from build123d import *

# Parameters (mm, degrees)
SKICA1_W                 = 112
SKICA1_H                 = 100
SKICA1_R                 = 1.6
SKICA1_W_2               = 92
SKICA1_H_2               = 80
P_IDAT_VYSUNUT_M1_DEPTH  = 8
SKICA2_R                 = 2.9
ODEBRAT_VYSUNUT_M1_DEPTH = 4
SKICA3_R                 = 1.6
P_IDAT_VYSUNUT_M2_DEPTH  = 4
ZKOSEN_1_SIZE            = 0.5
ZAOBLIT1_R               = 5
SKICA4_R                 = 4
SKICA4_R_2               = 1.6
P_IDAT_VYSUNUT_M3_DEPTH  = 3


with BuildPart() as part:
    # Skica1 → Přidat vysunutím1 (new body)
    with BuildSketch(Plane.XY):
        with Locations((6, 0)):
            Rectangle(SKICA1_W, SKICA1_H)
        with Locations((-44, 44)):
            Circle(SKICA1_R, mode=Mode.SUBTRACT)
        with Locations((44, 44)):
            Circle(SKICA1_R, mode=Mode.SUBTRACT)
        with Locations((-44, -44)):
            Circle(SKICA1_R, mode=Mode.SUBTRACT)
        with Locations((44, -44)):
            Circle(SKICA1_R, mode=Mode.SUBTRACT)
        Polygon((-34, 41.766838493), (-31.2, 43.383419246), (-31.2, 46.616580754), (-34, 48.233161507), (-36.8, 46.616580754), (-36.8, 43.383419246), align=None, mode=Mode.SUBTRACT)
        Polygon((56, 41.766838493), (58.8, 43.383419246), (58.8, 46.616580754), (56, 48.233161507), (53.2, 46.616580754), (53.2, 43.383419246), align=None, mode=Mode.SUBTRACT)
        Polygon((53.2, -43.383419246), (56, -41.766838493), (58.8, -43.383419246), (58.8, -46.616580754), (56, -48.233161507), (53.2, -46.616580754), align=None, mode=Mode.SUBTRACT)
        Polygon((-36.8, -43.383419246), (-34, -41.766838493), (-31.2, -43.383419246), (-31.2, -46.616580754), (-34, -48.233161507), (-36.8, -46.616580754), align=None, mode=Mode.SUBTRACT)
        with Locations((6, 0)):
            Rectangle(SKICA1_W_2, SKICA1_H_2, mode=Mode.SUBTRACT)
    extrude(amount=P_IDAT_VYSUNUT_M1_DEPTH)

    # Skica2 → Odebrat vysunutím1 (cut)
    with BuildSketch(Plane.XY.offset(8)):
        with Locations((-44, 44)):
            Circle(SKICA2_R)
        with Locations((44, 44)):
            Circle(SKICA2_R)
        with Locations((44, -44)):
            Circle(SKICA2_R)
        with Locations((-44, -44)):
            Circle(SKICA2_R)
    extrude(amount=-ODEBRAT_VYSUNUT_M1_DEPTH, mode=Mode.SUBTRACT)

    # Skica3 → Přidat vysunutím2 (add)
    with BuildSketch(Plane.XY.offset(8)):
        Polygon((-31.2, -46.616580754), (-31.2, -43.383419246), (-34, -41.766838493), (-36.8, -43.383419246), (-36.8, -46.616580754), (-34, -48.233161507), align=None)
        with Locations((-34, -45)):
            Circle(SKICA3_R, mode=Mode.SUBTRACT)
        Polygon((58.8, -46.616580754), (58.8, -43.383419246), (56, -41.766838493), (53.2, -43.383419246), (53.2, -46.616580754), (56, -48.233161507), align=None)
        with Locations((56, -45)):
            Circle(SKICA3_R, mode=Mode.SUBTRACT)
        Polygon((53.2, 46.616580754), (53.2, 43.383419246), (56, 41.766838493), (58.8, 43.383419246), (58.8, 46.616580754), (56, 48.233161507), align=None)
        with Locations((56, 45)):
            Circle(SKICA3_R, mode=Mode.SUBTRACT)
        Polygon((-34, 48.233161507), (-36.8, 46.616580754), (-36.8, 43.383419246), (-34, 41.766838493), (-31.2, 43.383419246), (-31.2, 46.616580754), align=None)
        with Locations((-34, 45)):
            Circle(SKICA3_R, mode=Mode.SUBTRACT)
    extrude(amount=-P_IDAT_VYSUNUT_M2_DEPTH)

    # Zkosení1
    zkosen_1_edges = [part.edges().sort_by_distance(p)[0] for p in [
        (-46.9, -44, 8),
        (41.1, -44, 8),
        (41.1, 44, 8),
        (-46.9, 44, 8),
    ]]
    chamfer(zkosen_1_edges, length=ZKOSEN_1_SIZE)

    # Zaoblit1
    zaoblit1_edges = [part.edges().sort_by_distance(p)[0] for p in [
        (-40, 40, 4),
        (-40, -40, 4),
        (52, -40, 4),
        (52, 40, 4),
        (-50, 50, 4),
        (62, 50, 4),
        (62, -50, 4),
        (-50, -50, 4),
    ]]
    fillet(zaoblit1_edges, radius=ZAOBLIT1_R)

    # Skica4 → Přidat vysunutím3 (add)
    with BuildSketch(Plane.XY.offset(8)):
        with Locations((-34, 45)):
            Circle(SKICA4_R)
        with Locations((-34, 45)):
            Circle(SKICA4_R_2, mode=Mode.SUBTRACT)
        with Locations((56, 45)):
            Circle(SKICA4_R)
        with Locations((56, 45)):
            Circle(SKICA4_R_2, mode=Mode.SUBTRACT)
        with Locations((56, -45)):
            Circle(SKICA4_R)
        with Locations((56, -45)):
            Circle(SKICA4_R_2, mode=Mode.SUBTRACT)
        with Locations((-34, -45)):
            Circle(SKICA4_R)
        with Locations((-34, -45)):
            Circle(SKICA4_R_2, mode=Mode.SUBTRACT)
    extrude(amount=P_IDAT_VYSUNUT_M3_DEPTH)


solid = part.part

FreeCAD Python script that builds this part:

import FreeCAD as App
import Part
import Sketcher
Q = App.Units.Quantity


def edges_at(feature, points):
    """Names of the edges that pass closest to the given points."""
    edges = feature.Shape.Edges
    near = lambda p: min(range(len(edges)), key=lambda i: edges[i].distToShape(Part.Vertex(*p))[0])
    return sorted({f"Edge{near(p) + 1}" for p in points})


def add_polygon(sketch, points):
    """Adds a closed chain of lines whose ends are joined by coincident constraints."""
    first, n = sketch.GeometryCount, len(points)
    for a, b in zip(points, points[1:] + points[:1]):
        sketch.addGeometry(Part.LineSegment(App.Vector(*a, 0), App.Vector(*b, 0)), False)
    for i in range(n):
        sketch.addConstraint(Sketcher.Constraint("Coincident", first + i, 2, first + (i + 1) % n, 1))

doc = App.newDocument("Part")
body = doc.addObject("PartDesign::Body", "Body")

sketch1 = body.newObject("Sketcher::SketchObject", "Sketch")
sketch1.AttachmentSupport = (doc.getObject("XY_Plane"), [""])
sketch1.MapMode = "FlatFace"
add_polygon(sketch1, [(-50, 50), (-50, -50), (62, -50), (62, 50)])
sketch1.addGeometry(Part.Circle(App.Vector(-44, -44, 0), App.Vector(0, 0, 1), 1.6), False)
add_polygon(sketch1, [(-36.8, -46.6), (-36.8, -43.4), (-34, -41.8), (-31.2, -43.4), (-31.2, -46.6), (-34, -48.2)])
add_polygon(sketch1, [(52, -40), (-40, -40), (-40, 40), (52, 40)])
sketch1.addGeometry(Part.Circle(App.Vector(44, -44, 0), App.Vector(0, 0, 1), 1.6), False)
add_polygon(sketch1, [(53.2, -46.6), (53.2, -43.4), (56, -41.8), (58.8, -43.4), (58.8, -46.6), (56, -48.2)])
sketch1.addGeometry(Part.Circle(App.Vector(-44, 44, 0), App.Vector(0, 0, 1), 1.6), False)
add_polygon(sketch1, [(-31.2, 43.4), (-34, 41.8), (-36.8, 43.4), (-36.8, 46.6), (-34, 48.2), (-31.2, 46.6)])
sketch1.addGeometry(Part.Circle(App.Vector(44, 44, 0), App.Vector(0, 0, 1), 1.6), False)
add_polygon(sketch1, [(58.8, 43.4), (56, 41.8), (53.2, 43.4), (53.2, 46.6), (56, 48.2), (58.8, 46.6)])
sketch1.addConstraint([
    Sketcher.Constraint("Vertical", 0),
    Sketcher.Constraint("Horizontal", 1),
    Sketcher.Constraint("Vertical", 2),
    Sketcher.Constraint("Horizontal", 3),
    Sketcher.Constraint("Vertical", 5),
    Sketcher.Constraint("Vertical", 8),
    Sketcher.Constraint("Horizontal", 11),
    Sketcher.Constraint("Vertical", 12),
    Sketcher.Constraint("Horizontal", 13),
    Sketcher.Constraint("Vertical", 14),
    Sketcher.Constraint("Vertical", 16),
    Sketcher.Constraint("Vertical", 19),
    Sketcher.Constraint("Vertical", 25),
    Sketcher.Constraint("Vertical", 28),
    Sketcher.Constraint("Vertical", 32),
    Sketcher.Constraint("Vertical", 35),
    Sketcher.Constraint("Equal", 4, 15),
    Sketcher.Constraint("Equal", 15, 22),
    Sketcher.Constraint("Equal", 22, 29),
    Sketcher.Constraint("Symmetric", 15, 3, 22, 3, -1, 1),
    Sketcher.Constraint("Symmetric", 4, 3, 29, 3, -1, 1),
    Sketcher.Constraint("Symmetric", 4, 3, 15, 3, -2),
    Sketcher.Constraint("Symmetric", 6, 2, 23, 2, -1),
    Sketcher.Constraint("Symmetric", 5, 2, 24, 2, -1),
    Sketcher.Constraint("Symmetric", 9, 2, 26, 2, -1),
    Sketcher.Constraint("Symmetric", 8, 2, 27, 2, -1),
    Sketcher.Constraint("Symmetric", 17, 2, 30, 2, -1),
    Sketcher.Constraint("Symmetric", 16, 2, 31, 2, -1),
    Sketcher.Constraint("Symmetric", 20, 2, 33, 2, -1),
    Sketcher.Constraint("Symmetric", 19, 2, 34, 2, -1),
    Sketcher.Constraint("Parallel", 6, 9),
    Sketcher.Constraint("Parallel", 7, 10),
    Sketcher.Constraint("Parallel", 9, 17),
    Sketcher.Constraint("Parallel", 10, 18),
    Sketcher.Constraint("Parallel", 17, 20),
    Sketcher.Constraint("Parallel", 18, 21),
    Sketcher.Constraint("Parallel", 20, 23),
    Sketcher.Constraint("Parallel", 21, 24),
    Sketcher.Constraint("Parallel", 23, 26),
    Sketcher.Constraint("Parallel", 26, 30),
    Sketcher.Constraint("Parallel", 30, 33),
    Sketcher.Constraint("Horizontal", 5, 2, 7, 2),
    Sketcher.Constraint("Horizontal", 8, 2, 10, 2),
    Sketcher.Constraint("Horizontal", 7, 2, 16, 2),
    Sketcher.Constraint("Horizontal", 6, 2, 17, 2),
    Sketcher.Constraint("Horizontal", 16, 2, 18, 2),
    Sketcher.Constraint("Horizontal", 10, 2, 19, 2),
    Sketcher.Constraint("Horizontal", 9, 2, 20, 2),
    Sketcher.Constraint("Diameter", 4, 3.2),
    Sketcher.Constraint("DistanceX", 1, 1, 1, 2, 112.0),
    Sketcher.Constraint("DistanceX", 11, 2, 11, 1, 92.0),
    Sketcher.Constraint("DistanceY", 0, 2, 0, 1, 100.0),
    Sketcher.Constraint("DistanceY", 12, 1, 12, 2, 80.0),
    Sketcher.Constraint("Angle", 6, Q("30 deg")),
    Sketcher.Constraint("DistanceX", 4, 3, -1, 1, 44.0),
    Sketcher.Constraint("DistanceY", 4, 3, -1, 1, 44.0),
    Sketcher.Constraint("DistanceX", 0, 2, -1, 1, 50.0),
    Sketcher.Constraint("DistanceY", 0, 2, -1, 1, 50.0),
    Sketcher.Constraint("DistanceX", 6, 2, -1, 1, 34.0),
    Sketcher.Constraint("DistanceX", 11, 2, -1, 1, 40.0),
    Sketcher.Constraint("DistanceY", 11, 2, -1, 1, 40.0),
    Sketcher.Constraint("DistanceX", -1, 1, 17, 2, 56.0),
    Sketcher.Constraint("DistanceX", 5, 2, -1, 1, 36.8),
    Sketcher.Constraint("DistanceY", 5, 1, 5, 2, 3.233162),
    Sketcher.Constraint("DistanceY", 5, 2, -1, 1, 43.383419),
])
pad1 = body.newObject("PartDesign::Pad", "Pad")
pad1.Profile = sketch1
pad1.Length = 8

sketch2 = body.newObject("Sketcher::SketchObject", "Sketch001")
sketch2.AttachmentSupport = (doc.getObject("XY_Plane"), [""])
sketch2.MapMode = "FlatFace"
sketch2.AttachmentOffset = App.Placement(App.Vector(0, 0, 8), App.Rotation())
sketch2.addGeometry([
    Part.Circle(App.Vector(-44, 44, 0), App.Vector(0, 0, 1), 2.9),
    Part.Circle(App.Vector(44, 44, 0), App.Vector(0, 0, 1), 2.9),
    Part.Circle(App.Vector(44, -44, 0), App.Vector(0, 0, 1), 2.9),
    Part.Circle(App.Vector(-44, -44, 0), App.Vector(0, 0, 1), 2.9),
], False)
sketch2.addConstraint([
    Sketcher.Constraint("Equal", 0, 1),
    Sketcher.Constraint("Equal", 1, 2),
    Sketcher.Constraint("Equal", 2, 3),
    Sketcher.Constraint("Symmetric", 0, 3, 2, 3, -1, 1),
    Sketcher.Constraint("Symmetric", 1, 3, 3, 3, -1, 1),
    Sketcher.Constraint("Symmetric", 0, 3, 1, 3, -2),
    Sketcher.Constraint("Diameter", 0, 5.8),
    Sketcher.Constraint("DistanceX", 0, 3, -1, 1, 44.0),
    Sketcher.Constraint("DistanceY", -1, 1, 0, 3, 44.0),
])
pocket1 = body.newObject("PartDesign::Pocket", "Pocket")
pocket1.Profile = sketch2
pocket1.Length = 4

sketch3 = body.newObject("Sketcher::SketchObject", "Sketch002")
sketch3.AttachmentSupport = (doc.getObject("XY_Plane"), [""])
sketch3.MapMode = "FlatFace"
sketch3.AttachmentOffset = App.Placement(App.Vector(0, 0, 8), App.Rotation())
add_polygon(sketch3, [(-31.2, -46.6), (-31.2, -43.4), (-34, -41.8), (-36.8, -43.4), (-36.8, -46.6), (-34, -48.2)])
sketch3.addGeometry(Part.Circle(App.Vector(-34, -45, 0), App.Vector(0, 0, 1), 1.6), False)
add_polygon(sketch3, [(58.8, -46.6), (58.8, -43.4), (56, -41.8), (53.2, -43.4), (53.2, -46.6), (56, -48.2)])
sketch3.addGeometry(Part.Circle(App.Vector(56, -45, 0), App.Vector(0, 0, 1), 1.6), False)
add_polygon(sketch3, [(53.2, 46.6), (53.2, 43.4), (56, 41.8), (58.8, 43.4), (58.8, 46.6), (56, 48.2)])
sketch3.addGeometry(Part.Circle(App.Vector(56, 45, 0), App.Vector(0, 0, 1), 1.6), False)
add_polygon(sketch3, [(-34, 48.2), (-36.8, 46.6), (-36.8, 43.4), (-34, 41.8), (-31.2, 43.4), (-31.2, 46.6)])
sketch3.addGeometry(Part.Circle(App.Vector(-34, 45, 0), App.Vector(0, 0, 1), 1.6), False)
sketch3.addConstraint([
    Sketcher.Constraint("Vertical", 0),
    Sketcher.Constraint("Vertical", 3),
    Sketcher.Constraint("Vertical", 7),
    Sketcher.Constraint("Vertical", 10),
    Sketcher.Constraint("Vertical", 14),
    Sketcher.Constraint("Vertical", 17),
    Sketcher.Constraint("Vertical", 22),
    Sketcher.Constraint("Vertical", 25),
    Sketcher.Constraint("Equal", 6, 13),
    Sketcher.Constraint("Equal", 13, 20),
    Sketcher.Constraint("Equal", 20, 27),
    Sketcher.Constraint("Symmetric", 13, 3, 20, 3, -1),
    Sketcher.Constraint("Symmetric", 6, 3, 27, 3, -1),
    Sketcher.Constraint("Symmetric", 9, 2, 14, 2, -1),
    Sketcher.Constraint("Symmetric", 8, 2, 15, 2, -1),
    Sketcher.Constraint("Symmetric", 7, 2, 16, 2, -1),
    Sketcher.Constraint("Symmetric", 11, 2, 18, 2, -1),
    Sketcher.Constraint("Symmetric", 3, 2, 21, 2, -1),
    Sketcher.Constraint("Symmetric", 1, 2, 23, 2, -1),
    Sketcher.Constraint("Symmetric", 0, 2, 24, 2, -1),
    Sketcher.Constraint("Symmetric", 4, 2, 26, 2, -1),
    Sketcher.Constraint("Parallel", 1, 4),
    Sketcher.Constraint("Parallel", 2, 5),
    Sketcher.Constraint("Parallel", 4, 8),
    Sketcher.Constraint("Parallel", 5, 9),
    Sketcher.Constraint("Parallel", 8, 11),
    Sketcher.Constraint("Parallel", 9, 12),
    Sketcher.Constraint("Parallel", 11, 15),
    Sketcher.Constraint("Parallel", 15, 18),
    Sketcher.Constraint("Parallel", 16, 19),
    Sketcher.Constraint("Parallel", 18, 23),
    Sketcher.Constraint("Parallel", 23, 26),
    Sketcher.Constraint("Horizontal", 6, 3, 13, 3),
    Sketcher.Constraint("Horizontal", 0, 2, 2, 2),
    Sketcher.Constraint("Horizontal", 3, 2, 5, 2),
    Sketcher.Constraint("Horizontal", 2, 2, 7, 2),
    Sketcher.Constraint("Horizontal", 1, 2, 8, 2),
    Sketcher.Constraint("Horizontal", 7, 2, 9, 2),
    Sketcher.Constraint("Horizontal", 5, 2, 10, 2),
    Sketcher.Constraint("Horizontal", 4, 2, 11, 2),
    Sketcher.Constraint("Vertical", 27, 3, 1, 2),
    Sketcher.Constraint("Vertical", 20, 3, 8, 2),
    Sketcher.Constraint("Diameter", 6, 3.2),
    Sketcher.Constraint("Angle", 1, Q("150 deg")),
    Sketcher.Constraint("DistanceX", 6, 3, -1, 1, 34.0),
    Sketcher.Constraint("DistanceY", 6, 3, -1, 1, 45.0),
    Sketcher.Constraint("DistanceX", -1, 1, 13, 3, 56.0),
    Sketcher.Constraint("DistanceY", 2, 2, 21, 2, 90.0),
    Sketcher.Constraint("DistanceX", 0, 2, -1, 1, 31.2),
    Sketcher.Constraint("DistanceY", 0, 1, 0, 2, 3.233162),
])
pad2 = body.newObject("PartDesign::Pad", "Pad001")
pad2.Profile = sketch3
pad2.Length = 4
pad2.Reversed = True
doc.recompute()

chamfer = body.newObject("PartDesign::Chamfer", "Chamfer")
chamfer.Base = (pad2, edges_at(pad2, [
    (-46.9, -44, 8),
    (41.1, -44, 8),
    (41.1, 44, 8),
    (-46.9, 44, 8),
]))
chamfer.Size = 0.5
doc.recompute()

fillet = body.newObject("PartDesign::Fillet", "Fillet")
fillet.Base = (chamfer, edges_at(chamfer, [
    (-40, 40, 4),
    (-40, -40, 4),
    (52, -40, 4),
    (52, 40, 4),
    (-50, 50, 4),
    (62, 50, 4),
    (62, -50, 4),
    (-50, -50, 4),
]))
fillet.Radius = 5

sketch4 = body.newObject("Sketcher::SketchObject", "Sketch003")
sketch4.AttachmentSupport = (doc.getObject("XY_Plane"), [""])
sketch4.MapMode = "FlatFace"
sketch4.AttachmentOffset = App.Placement(App.Vector(0, 0, 8), App.Rotation())
sketch4.addGeometry([
    Part.Circle(App.Vector(-34, 45, 0), App.Vector(0, 0, 1), 4),
    Part.Circle(App.Vector(-34, 45, 0), App.Vector(0, 0, 1), 1.6),
    Part.Circle(App.Vector(56, 45, 0), App.Vector(0, 0, 1), 4),
    Part.Circle(App.Vector(56, 45, 0), App.Vector(0, 0, 1), 1.6),
    Part.Circle(App.Vector(56, -45, 0), App.Vector(0, 0, 1), 4),
    Part.Circle(App.Vector(56, -45, 0), App.Vector(0, 0, 1), 1.6),
    Part.Circle(App.Vector(-34, -45, 0), App.Vector(0, 0, 1), 4),
    Part.Circle(App.Vector(-34, -45, 0), App.Vector(0, 0, 1), 1.6),
], False)
sketch4.addConstraint([
    Sketcher.Constraint("Coincident", 1, 3, 0, 3),
    Sketcher.Constraint("Coincident", 3, 3, 2, 3),
    Sketcher.Constraint("Coincident", 5, 3, 4, 3),
    Sketcher.Constraint("Coincident", 7, 3, 6, 3),
    Sketcher.Constraint("Equal", 0, 2),
    Sketcher.Constraint("Equal", 1, 3),
    Sketcher.Constraint("Equal", 2, 4),
    Sketcher.Constraint("Equal", 3, 5),
    Sketcher.Constraint("Equal", 4, 6),
    Sketcher.Constraint("Equal", 5, 7),
    Sketcher.Constraint("Symmetric", 2, 3, 4, 3, -1),
    Sketcher.Constraint("Symmetric", 0, 3, 6, 3, -1),
    Sketcher.Constraint("Horizontal", 1, 3, 2, 3),
    Sketcher.Constraint("Diameter", 0, 8.0),
    Sketcher.Constraint("Diameter", 1, 3.2),
    Sketcher.Constraint("DistanceX", 0, 3, -1, 1, 34.0),
    Sketcher.Constraint("DistanceY", -1, 1, 0, 3, 45.0),
    Sketcher.Constraint("DistanceX", -1, 1, 2, 3, 56.0),
])
pad3 = body.newObject("PartDesign::Pad", "Pad002")
pad3.Profile = sketch4
pad3.Length = 3

doc.recompute()
